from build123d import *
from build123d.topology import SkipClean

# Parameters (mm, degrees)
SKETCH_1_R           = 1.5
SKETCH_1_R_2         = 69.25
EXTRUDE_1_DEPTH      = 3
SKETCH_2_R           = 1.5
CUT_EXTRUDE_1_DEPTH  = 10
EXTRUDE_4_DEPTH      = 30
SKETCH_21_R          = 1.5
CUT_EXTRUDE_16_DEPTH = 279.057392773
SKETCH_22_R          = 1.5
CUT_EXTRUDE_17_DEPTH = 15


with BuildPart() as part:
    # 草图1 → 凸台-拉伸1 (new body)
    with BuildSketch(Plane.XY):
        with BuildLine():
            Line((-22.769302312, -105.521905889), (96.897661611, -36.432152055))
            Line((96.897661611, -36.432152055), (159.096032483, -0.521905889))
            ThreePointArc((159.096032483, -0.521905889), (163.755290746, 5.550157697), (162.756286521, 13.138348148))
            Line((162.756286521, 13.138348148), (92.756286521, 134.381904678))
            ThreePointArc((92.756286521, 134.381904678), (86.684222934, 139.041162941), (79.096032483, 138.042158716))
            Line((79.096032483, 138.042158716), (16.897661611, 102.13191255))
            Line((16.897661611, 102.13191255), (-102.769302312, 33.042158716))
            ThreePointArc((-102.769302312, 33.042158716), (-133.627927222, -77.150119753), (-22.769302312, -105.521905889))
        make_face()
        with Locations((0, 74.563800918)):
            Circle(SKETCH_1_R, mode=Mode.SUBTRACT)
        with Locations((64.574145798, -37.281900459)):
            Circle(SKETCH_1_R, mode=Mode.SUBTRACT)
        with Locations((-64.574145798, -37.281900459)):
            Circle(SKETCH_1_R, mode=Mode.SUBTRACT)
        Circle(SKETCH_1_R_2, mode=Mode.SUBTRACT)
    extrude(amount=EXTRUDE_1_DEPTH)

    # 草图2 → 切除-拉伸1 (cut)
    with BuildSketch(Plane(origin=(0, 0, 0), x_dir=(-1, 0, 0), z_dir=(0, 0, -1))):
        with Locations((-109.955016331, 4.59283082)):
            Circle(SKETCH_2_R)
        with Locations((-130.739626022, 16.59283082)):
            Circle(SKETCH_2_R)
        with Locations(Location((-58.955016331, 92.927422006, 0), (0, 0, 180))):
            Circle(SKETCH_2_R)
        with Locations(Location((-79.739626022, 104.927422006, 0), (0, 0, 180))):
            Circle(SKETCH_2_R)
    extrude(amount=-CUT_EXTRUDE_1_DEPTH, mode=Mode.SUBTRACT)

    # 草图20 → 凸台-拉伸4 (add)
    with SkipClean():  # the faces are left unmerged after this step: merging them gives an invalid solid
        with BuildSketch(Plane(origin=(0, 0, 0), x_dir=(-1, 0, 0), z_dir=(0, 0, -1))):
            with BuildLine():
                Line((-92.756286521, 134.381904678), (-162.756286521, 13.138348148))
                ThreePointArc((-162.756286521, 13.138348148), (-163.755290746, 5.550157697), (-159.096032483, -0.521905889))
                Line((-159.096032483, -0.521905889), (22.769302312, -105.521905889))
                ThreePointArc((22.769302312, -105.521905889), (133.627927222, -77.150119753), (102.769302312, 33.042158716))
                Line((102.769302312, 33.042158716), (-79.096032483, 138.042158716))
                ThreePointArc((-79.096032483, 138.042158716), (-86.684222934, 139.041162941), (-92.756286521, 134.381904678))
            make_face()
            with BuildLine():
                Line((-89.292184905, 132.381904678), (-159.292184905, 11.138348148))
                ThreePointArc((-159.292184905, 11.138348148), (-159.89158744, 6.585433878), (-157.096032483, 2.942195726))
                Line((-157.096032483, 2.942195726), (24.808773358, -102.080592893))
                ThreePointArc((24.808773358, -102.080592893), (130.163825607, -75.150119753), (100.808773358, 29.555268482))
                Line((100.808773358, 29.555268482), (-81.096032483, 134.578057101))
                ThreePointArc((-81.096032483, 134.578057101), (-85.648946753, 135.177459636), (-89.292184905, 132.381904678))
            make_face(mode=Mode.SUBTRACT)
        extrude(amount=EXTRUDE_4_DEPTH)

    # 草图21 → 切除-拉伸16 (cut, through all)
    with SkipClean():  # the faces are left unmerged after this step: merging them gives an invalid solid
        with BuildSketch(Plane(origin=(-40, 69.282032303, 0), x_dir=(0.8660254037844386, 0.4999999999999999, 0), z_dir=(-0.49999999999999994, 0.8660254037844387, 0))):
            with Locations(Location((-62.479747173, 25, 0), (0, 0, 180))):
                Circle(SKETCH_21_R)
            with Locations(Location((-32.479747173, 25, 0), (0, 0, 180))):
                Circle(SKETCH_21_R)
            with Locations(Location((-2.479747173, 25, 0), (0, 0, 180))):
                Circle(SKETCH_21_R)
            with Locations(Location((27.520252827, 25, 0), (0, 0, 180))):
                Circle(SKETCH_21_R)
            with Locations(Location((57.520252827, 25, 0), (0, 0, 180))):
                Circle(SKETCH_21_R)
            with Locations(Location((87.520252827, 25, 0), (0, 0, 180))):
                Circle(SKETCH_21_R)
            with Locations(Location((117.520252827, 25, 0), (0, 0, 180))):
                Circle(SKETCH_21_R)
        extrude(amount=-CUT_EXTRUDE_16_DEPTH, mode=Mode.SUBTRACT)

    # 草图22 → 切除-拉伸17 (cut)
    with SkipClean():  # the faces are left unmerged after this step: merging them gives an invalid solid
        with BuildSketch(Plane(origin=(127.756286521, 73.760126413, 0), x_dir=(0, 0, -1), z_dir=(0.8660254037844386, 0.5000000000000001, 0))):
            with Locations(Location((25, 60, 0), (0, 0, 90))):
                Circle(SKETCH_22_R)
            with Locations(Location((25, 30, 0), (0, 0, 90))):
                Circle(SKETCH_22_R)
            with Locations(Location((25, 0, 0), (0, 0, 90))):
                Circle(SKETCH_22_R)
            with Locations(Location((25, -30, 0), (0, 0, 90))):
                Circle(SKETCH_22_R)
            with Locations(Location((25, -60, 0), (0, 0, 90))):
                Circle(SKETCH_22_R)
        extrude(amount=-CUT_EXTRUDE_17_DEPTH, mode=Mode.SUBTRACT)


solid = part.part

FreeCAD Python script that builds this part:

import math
import FreeCAD as App
import Part
import Sketcher

V = App.Vector
Q = App.Units.Quantity

doc = App.newDocument("Part")
params = doc.addObject("Spreadsheet::Sheet", "Params")
for row, (alias, value) in enumerate([
    ("sketch1_diameter", "3 mm"),
    ("sketch1_radius", "10 mm"),
    ("sketch1_diameter2", "138.5 mm"),
    ("sketch1_length", "210 mm"),
    ("sketch1_length2", "140 mm"),
    ("pad1_length", "3 mm"),
    ("sketch2_diameter", "3 mm"),
    ("pocket1_length", "10 mm"),
    ("sketch3_radius", "10 mm"),
    ("sketch3_radius2", "6 mm"),
    ("sketch3_length", "140 mm"),
    ("sketch3_length2", "210 mm"),
    ("pad2_length", "30 mm"),
    ("sketch4_diameter", "3 mm"),
    ("sketch5_diameter", "3 mm"),
    ("pocket3_length", "15 mm"),
], start=1):
    params.set(f"A{row}", alias)
    params.set(f"B{row}", "=" + value)
    params.setAlias(f"B{row}", alias)

body = doc.addObject("PartDesign::Body", "Body")

# Sketch on XY plane
sketch1 = doc.addObject("Sketcher::SketchObject", "Sketch")
body.addObject(sketch1)
sketch1.AttachmentSupport = (doc.XY_Plane, [""])
sketch1.MapMode = "FlatFace"
sketch1.addGeometry([
    Part.LineSegment(V(-22.8, -105.5, 0), V(159.1, -0.5, 0)),  # 0
    Part.ArcOfCircle(Part.Circle(V(154.1, 8.1, 0), V(0, 0, 1), 10), math.radians(-60), math.radians(30)),  # 1
    Part.LineSegment(V(162.8, 13.1, 0), V(92.8, 134.4, 0)),  # 2
    Part.ArcOfCircle(Part.Circle(V(84.1, 129.4, 0), V(0, 0, 1), 10), math.radians(30), math.radians(120)),  # 3
    Part.LineSegment(V(79.1, 138, 0), V(-102.8, 33, 0)),  # 4
    Part.ArcOfCircle(Part.Circle(V(-64.3, -37.1, 0), V(0, 0, 1), 80), math.radians(119), math.radians(301)),  # 5
    Part.Circle(V(-64.6, -37.3, 0), V(0, 0, 1), 1.5),  # 6
    Part.Circle(V(64.6, -37.3, 0), V(0, 0, 1), 1.5),  # 7
    Part.Circle(V(0, 0, 0), V(0, 0, 1), 69.2),  # 8
    Part.Circle(V(0, 74.6, 0), V(0, 0, 1), 1.5),  # 9
], False)
sketch1.addConstraint([
    Sketcher.Constraint("Tangent", 0, 2, 1, 1),
    Sketcher.Constraint("Tangent", 1, 2, 2, 1),
    Sketcher.Constraint("Tangent", 2, 2, 3, 1),
    Sketcher.Constraint("Tangent", 3, 2, 4, 1),
    Sketcher.Constraint("Coincident", 4, 2, 5, 1),
    Sketcher.Constraint("Coincident", 5, 2, 0, 1),
    Sketcher.Constraint("Coincident", 8, 3, -1, 1),
    Sketcher.Constraint("Equal", 1, 3),
    Sketcher.Constraint("Equal", 6, 7),
    Sketcher.Constraint("Equal", 7, 9),
    Sketcher.Constraint("Symmetric", 6, 3, 7, 3, -2),
    Sketcher.Constraint("PointOnObject", 9, 3, -2),
    Sketcher.Constraint("Perpendicular", 0, 2),
    Sketcher.Constraint("Perpendicular", 2, 4),
    Sketcher.Constraint("Equal", 0, 4),
    Sketcher.Constraint("Diameter", 6, 3.0),
    Sketcher.Constraint("Radius", 1, 10.0),
    Sketcher.Constraint("Diameter", 8, 138.5),
    Sketcher.Constraint("Angle", 0, Q("30 deg")),
    Sketcher.Constraint("Distance", 0, 210.0),
    Sketcher.Constraint("Distance", 2, 140.0),
    Sketcher.Constraint("Radius", 5, 80.020253),
    Sketcher.Constraint("DistanceY", 6, 3, -1, 1, 37.2819),
    Sketcher.Constraint("DistanceY", -1, 1, 9, 3, 74.563801),
    Sketcher.Constraint("DistanceX", 5, 3, 7, 3, 128.902501),
    Sketcher.Constraint("DistanceY", -1, 1, 1, 3, 8.138348),
    Sketcher.Constraint("DistanceX", 6, 3, 5, 3, 0.24579),
])
sketch1.setExpression("Constraints[15]", "Params.sketch1_diameter")
sketch1.setExpression("Constraints[16]", "Params.sketch1_radius")
sketch1.setExpression("Constraints[17]", "Params.sketch1_diameter2")
sketch1.setExpression("Constraints[19]", "Params.sketch1_length")
sketch1.setExpression("Constraints[20]", "Params.sketch1_length2")
pad1 = doc.addObject("PartDesign::Pad", "Pad")
body.addObject(pad1)
pad1.Profile = sketch1
pad1.setExpression("Length", "Params.pad1_length")

# Sketch on XY plane
sketch2 = doc.addObject("Sketcher::SketchObject", "Sketch001")
body.addObject(sketch2)
sketch2.AttachmentSupport = (doc.XY_Plane, [""])
sketch2.MapMode = "FlatFace"
sketch2.addGeometry([
    Part.Circle(V(110, 4.6, 0), V(0, 0, 1), 1.5),
    Part.Circle(V(130.7, 16.6, 0), V(0, 0, 1), 1.5),
    Part.Circle(V(59, 92.9, 0), V(0, 0, 1), 1.5),
    Part.Circle(V(79.7, 104.9, 0), V(0, 0, 1), 1.5),
], False)
sketch2.addConstraint([
    Sketcher.Constraint("Equal", 0, 1),
    Sketcher.Constraint("Equal", 1, 2),
    Sketcher.Constraint("Equal", 2, 3),
    Sketcher.Constraint("Diameter", 0, 3.0),
    Sketcher.Constraint("DistanceY", 0, 3, 1, 3, 12.0),
    Sketcher.Constraint("DistanceX", 2, 3, 0, 3, 51.0),
    Sketcher.Constraint("DistanceY", 2, 3, 3, 3, 12.0),
    Sketcher.Constraint("DistanceX", 3, 3, 1, 3, 51.0),
    Sketcher.Constraint("DistanceY", -1, 1, 0, 3, 4.592831),
    Sketcher.Constraint("DistanceX", 0, 3, 1, 3, 20.78461),
    Sketcher.Constraint("DistanceY", 0, 3, 2, 3, 88.334591),
    Sketcher.Constraint("DistanceX", -1, 1, 0, 3, 109.955016),
])
sketch2.setExpression("Constraints[3]", "Params.sketch2_diameter")
pocket1 = doc.addObject("PartDesign::Pocket", "Pocket")
body.addObject(pocket1)
pocket1.Profile = sketch2
pocket1.setExpression("Length", "Params.pocket1_length")
pocket1.Reversed = True

# Sketch on XY plane
sketch3 = doc.addObject("Sketcher::SketchObject", "Sketch002")
body.addObject(sketch3)
sketch3.AttachmentSupport = (doc.XY_Plane, [""])
sketch3.MapMode = "FlatFace"
sketch3.addGeometry([
    Part.LineSegment(V(93, 134, 0), V(163, 13, 0)),  # 0
    Part.ArcOfCircle(Part.Circle(V(154, 8, 0), V(0, 0, 1), 10), math.radians(-60), math.radians(30)),  # 1
    Part.LineSegment(V(159, -1, 0), V(-23, -106, 0)),  # 2
    Part.ArcOfCircle(Part.Circle(V(-64, -37, 0), V(0, 0, 1), 80), math.radians(119), math.radians(301)),  # 3
    Part.LineSegment(V(-103, 33, 0), V(79, 138, 0)),  # 4
    Part.ArcOfCircle(Part.Circle(V(84, 129, 0), V(0, 0, 1), 10), math.radians(30), math.radians(120)),  # 5
    Part.LineSegment(V(159, 11, 0), V(89, 132, 0)),  # 6
    Part.ArcOfCircle(Part.Circle(V(84, 129, 0), V(0, 0, 1), 6), math.radians(30), math.radians(120)),  # 7
    Part.LineSegment(V(81, 135, 0), V(-101, 30, 0)),  # 8
    Part.ArcOfCircle(Part.Circle(V(-64, -37, 0), V(0, 0, 1), 76), math.radians(119), math.radians(301)),  # 9
    Part.LineSegment(V(-25, -102, 0), V(157, 3, 0)),  # 10
    Part.ArcOfCircle(Part.Circle(V(154, 8, 0), V(0, 0, 1), 6), math.radians(-60), math.radians(30)),  # 11
], False)
sketch3.addConstraint([
    Sketcher.Constraint("Tangent", 0, 2, 1, 2),
    Sketcher.Constraint("Tangent", 1, 1, 2, 1),
    Sketcher.Constraint("Coincident", 2, 2, 3, 2),
    Sketcher.Constraint("Coincident", 3, 1, 4, 1),
    Sketcher.Constraint("Tangent", 4, 2, 5, 2),
    Sketcher.Constraint("Tangent", 5, 1, 0, 1),
    Sketcher.Constraint("Tangent", 6, 2, 7, 1),
    Sketcher.Constraint("Tangent", 7, 2, 8, 1),
    Sketcher.Constraint("Coincident", 8, 2, 9, 1),
    Sketcher.Constraint("Coincident", 9, 2, 10, 1),
    Sketcher.Constraint("Tangent", 10, 2, 11, 1),
    Sketcher.Constraint("Tangent", 11, 2, 6, 1),
    Sketcher.Constraint("Coincident", 7, 3, 5, 3),
    Sketcher.Constraint("Coincident", 9, 3, 3, 3),
    Sketcher.Constraint("Coincident", 11, 3, 1, 3),
    Sketcher.Constraint("Equal", 1, 5),
    Sketcher.Constraint("Equal", 7, 11),
    Sketcher.Constraint("Perpendicular", 0, 2),
    Sketcher.Constraint("Parallel", 2, 4),
    Sketcher.Constraint("Perpendicular", 6, 8),
    Sketcher.Constraint("Parallel", 8, 10),
    Sketcher.Constraint("Equal", 2, 4),
    Sketcher.Constraint("Radius", 1, 10.0),
    Sketcher.Constraint("Radius", 7, 6.0),
    Sketcher.Constraint("Angle", 0, Q("-60 deg")),
    Sketcher.Constraint("Distance", 0, 140.0),
    Sketcher.Constraint("Distance", 2, 210.0),
    Sketcher.Constraint("Radius", 3, 80.020253),
    Sketcher.Constraint("Radius", 9, 76.020253),
    Sketcher.Constraint("DistanceY", -1, 1, 1, 3, 8.138348),
    Sketcher.Constraint("DistanceX", -1, 1, 1, 3, 154.096032),
])
sketch3.setExpression("Constraints[22]", "Params.sketch3_radius")
sketch3.setExpression("Constraints[23]", "Params.sketch3_radius2")
sketch3.setExpression("Constraints[25]", "Params.sketch3_length")
sketch3.setExpression("Constraints[26]", "Params.sketch3_length2")
pad2 = doc.addObject("PartDesign::Pad", "Pad001")
body.addObject(pad2)
pad2.Profile = sketch3
pad2.setExpression("Length", "Params.pad2_length")
pad2.Reversed = True

# Sketch on an angled plane
sketch4 = doc.addObject("Sketcher::SketchObject", "Sketch003")
body.addObject(sketch4)
sketch4.Placement = App.Placement(V(-40, 69.282032, 0), App.Rotation(V(0.866025404, 0.5, 0), V(0, 0, -1), V(-0.5, 0.866025404, 0), "ZXY"))
sketch4.addGeometry([
    Part.Circle(V(-62.5, 25, 0), V(0, 0, 1), 1.5),  # 0
    Part.Circle(V(-32.5, 25, 0), V(0, 0, 1), 1.5),  # 1
    Part.Circle(V(-2.5, 25, 0), V(0, 0, 1), 1.5),  # 2
    Part.Circle(V(27.5, 25, 0), V(0, 0, 1), 1.5),  # 3
    Part.Circle(V(57.5, 25, 0), V(0, 0, 1), 1.5),  # 4
    Part.Circle(V(87.5, 25, 0), V(0, 0, 1), 1.5),  # 5
    Part.Circle(V(117.5, 25, 0), V(0, 0, 1), 1.5),  # 6
], False)
sketch4.addConstraint([
    Sketcher.Constraint("Equal", 0, 1),
    Sketcher.Constraint("Equal", 1, 2),
    Sketcher.Constraint("Equal", 2, 3),
    Sketcher.Constraint("Equal", 3, 4),
    Sketcher.Constraint("Equal", 4, 5),
    Sketcher.Constraint("Equal", 5, 6),
    Sketcher.Constraint("Horizontal", 0, 3, 1, 3),
    Sketcher.Constraint("Horizontal", 1, 3, 2, 3),
    Sketcher.Constraint("Horizontal", 2, 3, 3, 3),
    Sketcher.Constraint("Horizontal", 3, 3, 4, 3),
    Sketcher.Constraint("Horizontal", 4, 3, 5, 3),
    Sketcher.Constraint("Horizontal", 5, 3, 6, 3),
    Sketcher.Constraint("Diameter", 0, 3.0),
    Sketcher.Constraint("DistanceY", -1, 1, 0, 3, 25.0),
    Sketcher.Constraint("DistanceX", 0, 3, 1, 3, 30.0),
    Sketcher.Constraint("DistanceX", 1, 3, 2, 3, 30.0),
    Sketcher.Constraint("DistanceX", 2, 3, 3, 3, 30.0),
    Sketcher.Constraint("DistanceX", 3, 3, 4, 3, 30.0),
    Sketcher.Constraint("DistanceX", 4, 3, 5, 3, 30.0),
    Sketcher.Constraint("DistanceX", 5, 3, 6, 3, 30.0),
    Sketcher.Constraint("DistanceX", 0, 3, -1, 1, 62.479747),
])
sketch4.setExpression("Constraints[12]", "Params.sketch4_diameter")
pocket2 = doc.addObject("PartDesign::Pocket", "Pocket001")
body.addObject(pocket2)
pocket2.Profile = sketch4
pocket2.Type = "ThroughAll"

# Sketch on an angled plane
sketch5 = doc.addObject("Sketcher::SketchObject", "Sketch004")
body.addObject(sketch5)
sketch5.Placement = App.Placement(V(127.756287, 73.760126, 0), App.Rotation(V(0, 0, -1), V(-0.5, 0.866025404, 0), V(0.866025404, 0.5, 0), "ZXY"))
sketch5.addGeometry([
    Part.Circle(V(25, 60, 0), V(0, 0, 1), 1.5),  # 0
    Part.Circle(V(25, 30, 0), V(0, 0, 1), 1.5),  # 1
    Part.Circle(V(25, 0, 0), V(0, 0, 1), 1.5),  # 2
    Part.Circle(V(25, -30, 0), V(0, 0, 1), 1.5),  # 3
    Part.Circle(V(25, -60, 0), V(0, 0, 1), 1.5),  # 4
], False)
sketch5.addConstraint([
    Sketcher.Constraint("Equal", 0, 1),
    Sketcher.Constraint("Equal", 1, 2),
    Sketcher.Constraint("Equal", 2, 3),
    Sketcher.Constraint("Equal", 3, 4),
    Sketcher.Constraint("Symmetric", 1, 3, 3, 3, -1),
    Sketcher.Constraint("Symmetric", 0, 3, 4, 3, -1),
    Sketcher.Constraint("PointOnObject", 2, 3, -1),
    Sketcher.Constraint("Vertical", 0, 3, 1, 3),
    Sketcher.Constraint("Vertical", 1, 3, 2, 3),
    Sketcher.Constraint("Diameter", 0, 3.0),
    Sketcher.Constraint("DistanceX", -1, 1, 0, 3, 25.0),
    Sketcher.Constraint("DistanceY", -1, 1, 0, 3, 60.0),
    Sketcher.Constraint("DistanceY", -1, 1, 1, 3, 30.0),
])
sketch5.setExpression("Constraints[9]", "Params.sketch5_diameter")
pocket3 = doc.addObject("PartDesign::Pocket", "Pocket002")
body.addObject(pocket3)
pocket3.Profile = sketch5
pocket3.setExpression("Length", "Params.pocket3_length")

doc.recompute()
